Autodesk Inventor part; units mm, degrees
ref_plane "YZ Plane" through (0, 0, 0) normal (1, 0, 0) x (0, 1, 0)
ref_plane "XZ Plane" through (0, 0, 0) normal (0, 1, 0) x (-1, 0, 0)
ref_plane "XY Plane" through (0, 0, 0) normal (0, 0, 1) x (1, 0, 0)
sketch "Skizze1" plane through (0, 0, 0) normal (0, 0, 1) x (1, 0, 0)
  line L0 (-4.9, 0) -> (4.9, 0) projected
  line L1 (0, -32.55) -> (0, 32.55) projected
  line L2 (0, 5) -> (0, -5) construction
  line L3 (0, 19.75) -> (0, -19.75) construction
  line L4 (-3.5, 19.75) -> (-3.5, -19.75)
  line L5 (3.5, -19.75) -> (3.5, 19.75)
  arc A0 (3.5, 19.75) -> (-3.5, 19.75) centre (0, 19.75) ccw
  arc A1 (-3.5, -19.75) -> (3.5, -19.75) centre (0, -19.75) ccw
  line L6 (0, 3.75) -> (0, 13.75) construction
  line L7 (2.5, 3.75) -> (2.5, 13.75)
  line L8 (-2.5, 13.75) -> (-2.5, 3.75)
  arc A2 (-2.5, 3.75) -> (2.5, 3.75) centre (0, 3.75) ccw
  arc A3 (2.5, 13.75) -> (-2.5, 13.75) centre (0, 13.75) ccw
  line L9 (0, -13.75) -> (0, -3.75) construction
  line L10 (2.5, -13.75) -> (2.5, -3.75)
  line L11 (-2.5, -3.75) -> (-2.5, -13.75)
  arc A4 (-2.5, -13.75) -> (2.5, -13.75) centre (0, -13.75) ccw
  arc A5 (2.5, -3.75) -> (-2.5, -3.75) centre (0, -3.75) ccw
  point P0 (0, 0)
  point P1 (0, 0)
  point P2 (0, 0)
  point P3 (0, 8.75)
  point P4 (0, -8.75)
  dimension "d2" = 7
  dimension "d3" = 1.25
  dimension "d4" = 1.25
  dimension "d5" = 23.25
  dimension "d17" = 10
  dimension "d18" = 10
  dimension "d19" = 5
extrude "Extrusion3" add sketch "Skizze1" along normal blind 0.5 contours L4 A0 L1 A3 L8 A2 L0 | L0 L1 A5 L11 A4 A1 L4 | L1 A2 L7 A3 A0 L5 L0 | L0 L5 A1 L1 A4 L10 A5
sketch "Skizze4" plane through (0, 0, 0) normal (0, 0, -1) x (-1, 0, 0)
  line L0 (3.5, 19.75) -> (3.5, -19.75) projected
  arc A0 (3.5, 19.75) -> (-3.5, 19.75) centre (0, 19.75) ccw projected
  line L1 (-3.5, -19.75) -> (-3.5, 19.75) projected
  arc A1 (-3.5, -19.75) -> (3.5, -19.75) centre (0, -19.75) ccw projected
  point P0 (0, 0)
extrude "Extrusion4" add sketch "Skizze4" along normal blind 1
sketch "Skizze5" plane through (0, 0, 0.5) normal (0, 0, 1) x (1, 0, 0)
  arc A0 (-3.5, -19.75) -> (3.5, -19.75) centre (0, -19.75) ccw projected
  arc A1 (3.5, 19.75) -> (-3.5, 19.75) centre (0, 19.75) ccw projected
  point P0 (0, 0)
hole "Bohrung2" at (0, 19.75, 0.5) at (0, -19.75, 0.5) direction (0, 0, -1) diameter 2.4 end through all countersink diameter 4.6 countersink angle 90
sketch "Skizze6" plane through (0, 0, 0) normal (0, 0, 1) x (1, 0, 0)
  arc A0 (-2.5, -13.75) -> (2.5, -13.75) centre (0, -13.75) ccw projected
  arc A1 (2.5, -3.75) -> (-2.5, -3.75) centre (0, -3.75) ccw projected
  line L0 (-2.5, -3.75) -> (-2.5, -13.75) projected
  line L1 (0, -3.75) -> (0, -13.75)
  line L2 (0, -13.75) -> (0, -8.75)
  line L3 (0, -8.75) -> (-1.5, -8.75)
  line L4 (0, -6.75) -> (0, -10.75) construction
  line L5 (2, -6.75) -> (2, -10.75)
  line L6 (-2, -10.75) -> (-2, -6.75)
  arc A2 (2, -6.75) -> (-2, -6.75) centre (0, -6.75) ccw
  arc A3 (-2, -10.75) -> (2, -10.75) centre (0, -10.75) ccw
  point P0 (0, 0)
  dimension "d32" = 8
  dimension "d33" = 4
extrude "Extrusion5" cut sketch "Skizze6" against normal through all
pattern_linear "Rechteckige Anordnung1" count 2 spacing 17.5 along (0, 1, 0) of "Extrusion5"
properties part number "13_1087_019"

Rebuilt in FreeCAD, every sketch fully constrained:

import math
import FreeCAD as App
import Part
import Sketcher

V = App.Vector
Q = App.Units.Quantity

doc = App.newDocument("Part")
body = doc.addObject("PartDesign::Body", "Body")

sketch1 = body.newObject("Sketcher::SketchObject", "Sketch")
sketch1.AttachmentSupport = (doc.getObject("XY_Plane"), [""])
sketch1.MapMode = "FlatFace"
sketch1.addGeometry([
    Part.LineSegment(V(-3.5, 19.8, 0), V(-3.5, -19.8, 0)),
    Part.ArcOfCircle(Part.Circle(V(0, -19.8, 0), V(0, 0, 1), 3.5), math.radians(180), math.radians(360)),
    Part.LineSegment(V(3.5, -19.8, 0), V(3.5, 19.8, 0)),
    Part.ArcOfCircle(Part.Circle(V(0, 19.8, 0), V(0, 0, 1), 3.5), math.radians(0), math.radians(180)),
    Part.ArcOfCircle(Part.Circle(V(0, 13.8, 0), V(0, 0, 1), 2.5), math.radians(0), math.radians(180)),
    Part.LineSegment(V(2.5, 13.8, 0), V(2.5, 3.8, 0)),
    Part.ArcOfCircle(Part.Circle(V(0, 3.8, 0), V(0, 0, 1), 2.5), math.radians(180), math.radians(360)),
    Part.LineSegment(V(-2.5, 3.8, 0), V(-2.5, 13.8, 0)),
    Part.ArcOfCircle(Part.Circle(V(0, -3.8, 0), V(0, 0, 1), 2.5), math.radians(0), math.radians(180)),
    Part.LineSegment(V(2.5, -3.8, 0), V(2.5, -13.8, 0)),
    Part.ArcOfCircle(Part.Circle(V(0, -13.8, 0), V(0, 0, 1), 2.5), math.radians(180), math.radians(360)),
    Part.LineSegment(V(-2.5, -13.8, 0), V(-2.5, -3.8, 0)),
], False)
sketch1.addConstraint([
    Sketcher.Constraint("Tangent", 0, 2, 1, 1),
    Sketcher.Constraint("Tangent", 1, 2, 2, 1),
    Sketcher.Constraint("Tangent", 2, 2, 3, 1),
    Sketcher.Constraint("Tangent", 3, 2, 0, 1),
    Sketcher.Constraint("Tangent", 4, 1, 5, 1),
    Sketcher.Constraint("Tangent", 5, 2, 6, 2),
    Sketcher.Constraint("Tangent", 6, 1, 7, 1),
    Sketcher.Constraint("Tangent", 7, 2, 4, 2),
    Sketcher.Constraint("Tangent", 8, 1, 9, 1),
    Sketcher.Constraint("Tangent", 9, 2, 10, 2),
    Sketcher.Constraint("Tangent", 10, 1, 11, 1),
    Sketcher.Constraint("Tangent", 11, 2, 8, 2),
    Sketcher.Constraint("Vertical", 0),
    Sketcher.Constraint("Vertical", 2),
    Sketcher.Constraint("Vertical", 5),
    Sketcher.Constraint("Vertical", 7),
    Sketcher.Constraint("Vertical", 9),
    Sketcher.Constraint("Vertical", 11),
    Sketcher.Constraint("Equal", 6, 8),
    Sketcher.Constraint("Symmetric", 1, 3, 3, 3, -1, 1),
    Sketcher.Constraint("Symmetric", 6, 3, 8, 3, -1, 1),
    Sketcher.Constraint("Symmetric", 4, 3, 10, 3, -1),
    Sketcher.Constraint("Radius", 1, Q("3.5 mm")),
    Sketcher.Constraint("Radius", 4, Q("2.5 mm")),
    Sketcher.Constraint("DistanceY", 5, 2, 5, 1, Q("10 mm")),
    Sketcher.Constraint("DistanceY", 0, 2, 0, 1, Q("39.5 mm")),
    Sketcher.Constraint("DistanceY", 4, 3, 3, 3, Q("6 mm")),
])
pad1 = body.newObject("PartDesign::Pad", "Pad")
pad1.Profile = sketch1
pad1.Length = 0.5

sketch2 = body.newObject("Sketcher::SketchObject", "Sketch001")
sketch2.AttachmentSupport = (doc.getObject("XY_Plane"), [""])
sketch2.MapMode = "FlatFace"
sketch2.addGeometry([
    Part.LineSegment(V(-3.5, -19.8, 0), V(-3.5, 19.8, 0)),
    Part.ArcOfCircle(Part.Circle(V(0, 19.8, 0), V(0, 0, 1), 3.5), math.radians(0), math.radians(180)),
    Part.LineSegment(V(3.5, 19.8, 0), V(3.5, -19.8, 0)),
    Part.ArcOfCircle(Part.Circle(V(0, -19.8, 0), V(0, 0, 1), 3.5), math.radians(180), math.radians(360)),
], False)
sketch2.addConstraint([
    Sketcher.Constraint("Tangent", 0, 2, 1, 2),
    Sketcher.Constraint("Tangent", 1, 1, 2, 1),
    Sketcher.Constraint("Tangent", 2, 2, 3, 2),
    Sketcher.Constraint("Tangent", 3, 1, 0, 1),
    Sketcher.Constraint("Vertical", 0),
    Sketcher.Constraint("Vertical", 2),
    Sketcher.Constraint("Symmetric", 1, 3, 3, 3, -1, 1),
    Sketcher.Constraint("Radius", 1, Q("3.5 mm")),
    Sketcher.Constraint("DistanceY", 0, 1, 0, 2, Q("39.5 mm")),
])
pad2 = body.newObject("PartDesign::Pad", "Pad001")
pad2.Profile = sketch2
pad2.Length = 1
pad2.Reversed = True

sketch3 = body.newObject("Sketcher::SketchObject", "Sketch002")
sketch3.AttachmentSupport = (doc.getObject("XY_Plane"), [""])
sketch3.MapMode = "FlatFace"
sketch3.AttachmentOffset = App.Placement(V(0, 0, 0.5), App.Rotation())
sketch3.addGeometry([
    Part.Circle(V(0, 19.8, 0), V(0, 0, 1), 1.2),
    Part.Circle(V(0, -19.8, 0), V(0, 0, 1), 1.2),
], False)
sketch3.addConstraint([
    Sketcher.Constraint("Equal", 0, 1),
    Sketcher.Constraint("Symmetric", 0, 3, 1, 3, -1, 1),
    Sketcher.Constraint("PointOnObject", 0, 3, -2),
    Sketcher.Constraint("Diameter", 0, Q("2.4 mm")),
    Sketcher.Constraint("DistanceY", 1, 3, 0, 3, Q("39.5 mm")),
])
doc.recompute()
hole = body.newObject("PartDesign::Hole", "Hole")
hole.Profile = sketch3
hole.ThreadType = "None"
hole.Diameter = 2.4
hole.DepthType = "ThroughAll"
hole.HoleCutType = "Countersink"
hole.HoleCutDiameter = 4.6
hole.HoleCutCountersinkAngle = 90

sketch4 = body.newObject("Sketcher::SketchObject", "Sketch003")
sketch4.AttachmentSupport = (doc.getObject("XY_Plane"), [""])
sketch4.MapMode = "FlatFace"
sketch4.addGeometry([
    Part.ArcOfCircle(Part.Circle(V(0, -6.8, 0), V(0, 0, 1), 2), math.radians(0), math.radians(180)),
    Part.LineSegment(V(-2, -6.8, 0), V(-2, -10.8, 0)),
    Part.ArcOfCircle(Part.Circle(V(0, -10.8, 0), V(0, 0, 1), 2), math.radians(180), math.radians(360)),
    Part.LineSegment(V(2, -10.8, 0), V(2, -6.8, 0)),
], False)
sketch4.addConstraint([
    Sketcher.Constraint("Tangent", 0, 2, 1, 1),
    Sketcher.Constraint("Tangent", 1, 2, 2, 1),
    Sketcher.Constraint("Tangent", 2, 2, 3, 1),
    Sketcher.Constraint("Tangent", 3, 2, 0, 1),
    Sketcher.Constraint("Vertical", 1),
    Sketcher.Constraint("Vertical", 3),
    Sketcher.Constraint("PointOnObject", 0, 3, -2),
    Sketcher.Constraint("Radius", 0, Q("2 mm")),
    Sketcher.Constraint("DistanceY", 1, 2, 1, 1, Q("4 mm")),
    Sketcher.Constraint("DistanceY", 0, 3, -1, 1, Q("6.75 mm")),
])
pocket1 = body.newObject("PartDesign::Pocket", "Pocket")
pocket1.Profile = sketch4
pocket1.Type = "ThroughAll"
doc.recompute()

linearpattern = body.newObject("PartDesign::LinearPattern", "LinearPattern")
linearpattern.Originals = [pocket1]
linearpattern.Direction = (doc.getObject("Y_Axis"), [""])
linearpattern.Mode = "offset"
linearpattern.Offset = 17.5
linearpattern.Occurrences = 2
body.Tip = linearpattern

doc.recompute()
